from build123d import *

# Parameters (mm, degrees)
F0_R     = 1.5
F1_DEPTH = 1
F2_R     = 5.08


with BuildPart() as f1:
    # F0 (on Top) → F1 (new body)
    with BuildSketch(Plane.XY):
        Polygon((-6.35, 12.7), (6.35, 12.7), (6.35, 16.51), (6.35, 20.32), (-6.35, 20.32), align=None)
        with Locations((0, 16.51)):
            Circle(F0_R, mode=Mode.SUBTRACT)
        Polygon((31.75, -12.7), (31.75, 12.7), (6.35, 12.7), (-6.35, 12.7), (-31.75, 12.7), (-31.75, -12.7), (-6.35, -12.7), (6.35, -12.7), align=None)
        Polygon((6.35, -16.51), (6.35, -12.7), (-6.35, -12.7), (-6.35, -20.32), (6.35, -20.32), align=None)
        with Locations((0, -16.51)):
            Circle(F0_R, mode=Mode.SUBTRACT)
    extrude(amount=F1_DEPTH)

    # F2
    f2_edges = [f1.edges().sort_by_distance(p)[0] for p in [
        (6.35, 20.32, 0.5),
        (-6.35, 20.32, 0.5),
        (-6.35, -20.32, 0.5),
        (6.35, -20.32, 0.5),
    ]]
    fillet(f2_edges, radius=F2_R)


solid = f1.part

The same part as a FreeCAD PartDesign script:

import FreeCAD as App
import Part
import Sketcher
Q = App.Units.Quantity


def edges_at(feature, points):
    """Names of the edges that pass closest to the given points."""
    edges = feature.Shape.Edges
    near = lambda p: min(range(len(edges)), key=lambda i: edges[i].distToShape(Part.Vertex(*p))[0])
    return sorted({f"Edge{near(p) + 1}" for p in points})

doc = App.newDocument("Part")
body = doc.addObject("PartDesign::Body", "Body")

# Sketch on XY plane
sketch1 = body.newObject("Sketcher::SketchObject", "Sketch")
sketch1.AttachmentSupport = (doc.getObject("XY_Plane"), [""])
sketch1.MapMode = "FlatFace"
sketch1.addGeometry(Part.LineSegment(App.Vector(-6.3, 20.3, 0), App.Vector(-6.3, 12.7, 0)), False)
sketch1.addGeometry(Part.LineSegment(App.Vector(-6.3, 12.7, 0), App.Vector(-31.8, 12.7, 0)), False)
sketch1.addGeometry(Part.LineSegment(App.Vector(-31.8, 12.7, 0), App.Vector(-31.8, -12.7, 0)), False)
sketch1.addGeometry(Part.LineSegment(App.Vector(-31.8, -12.7, 0), App.Vector(-6.3, -12.7, 0)), False)
sketch1.addGeometry(Part.LineSegment(App.Vector(-6.3, -12.7, 0), App.Vector(-6.3, -20.3, 0)), False)
sketch1.addGeometry(Part.LineSegment(App.Vector(-6.3, -20.3, 0), App.Vector(6.3, -20.3, 0)), False)
sketch1.addGeometry(Part.LineSegment(App.Vector(6.3, -20.3, 0), App.Vector(6.3, -12.7, 0)), False)
sketch1.addGeometry(Part.LineSegment(App.Vector(6.3, -12.7, 0), App.Vector(31.8, -12.7, 0)), False)
sketch1.addGeometry(Part.LineSegment(App.Vector(31.8, -12.7, 0), App.Vector(31.8, 12.7, 0)), False)
sketch1.addGeometry(Part.LineSegment(App.Vector(31.8, 12.7, 0), App.Vector(6.3, 12.7, 0)), False)
sketch1.addGeometry(Part.LineSegment(App.Vector(6.3, 12.7, 0), App.Vector(6.3, 20.3, 0)), False)
sketch1.addGeometry(Part.LineSegment(App.Vector(6.3, 20.3, 0), App.Vector(-6.3, 20.3, 0)), False)
sketch1.addGeometry(Part.Circle(App.Vector(0, -16.5, 0), App.Vector(0, 0, 1), 1.5), False)
sketch1.addGeometry(Part.Circle(App.Vector(0, 16.5, 0), App.Vector(0, 0, 1), 1.5), False)
sketch1.addConstraint(Sketcher.Constraint("Coincident", 0, 2, 1, 1))
sketch1.addConstraint(Sketcher.Constraint("Coincident", 1, 2, 2, 1))
sketch1.addConstraint(Sketcher.Constraint("Coincident", 2, 2, 3, 1))
sketch1.addConstraint(Sketcher.Constraint("Coincident", 3, 2, 4, 1))
sketch1.addConstraint(Sketcher.Constraint("Coincident", 4, 2, 5, 1))
sketch1.addConstraint(Sketcher.Constraint("Coincident", 5, 2, 6, 1))
sketch1.addConstraint(Sketcher.Constraint("Coincident", 6, 2, 7, 1))
sketch1.addConstraint(Sketcher.Constraint("Coincident", 7, 2, 8, 1))
sketch1.addConstraint(Sketcher.Constraint("Coincident", 8, 2, 9, 1))
sketch1.addConstraint(Sketcher.Constraint("Coincident", 9, 2, 10, 1))
sketch1.addConstraint(Sketcher.Constraint("Coincident", 10, 2, 11, 1))
sketch1.addConstraint(Sketcher.Constraint("Coincident", 11, 2, 0, 1))
sketch1.addConstraint(Sketcher.Constraint("Vertical", 0))
sketch1.addConstraint(Sketcher.Constraint("Horizontal", 1))
sketch1.addConstraint(Sketcher.Constraint("Vertical", 2))
sketch1.addConstraint(Sketcher.Constraint("Horizontal", 3))
sketch1.addConstraint(Sketcher.Constraint("Vertical", 4))
sketch1.addConstraint(Sketcher.Constraint("Horizontal", 5))
sketch1.addConstraint(Sketcher.Constraint("Vertical", 6))
sketch1.addConstraint(Sketcher.Constraint("Horizontal", 7))
sketch1.addConstraint(Sketcher.Constraint("Vertical", 8))
sketch1.addConstraint(Sketcher.Constraint("Horizontal", 9))
sketch1.addConstraint(Sketcher.Constraint("Vertical", 10))
sketch1.addConstraint(Sketcher.Constraint("Horizontal", 11))
sketch1.addConstraint(Sketcher.Constraint("Equal", 12, 13))
sketch1.addConstraint(Sketcher.Constraint("Symmetric", 12, 3, 13, 3, -1, 1))
sketch1.addConstraint(Sketcher.Constraint("Symmetric", 0, 2, 6, 2, -1, 1))
sketch1.addConstraint(Sketcher.Constraint("Symmetric", 2, 2, 8, 2, -1, 1))
sketch1.addConstraint(Sketcher.Constraint("Symmetric", 4, 2, 10, 2, -1, 1))
sketch1.addConstraint(Sketcher.Constraint("Symmetric", 3, 2, 6, 2, -2))
sketch1.addConstraint(Sketcher.Constraint("PointOnObject", 12, 3, -2))
sketch1.addConstraint(Sketcher.Constraint("Equal", 9, 2))
sketch1.addConstraint(Sketcher.Constraint("DistanceX", 1, 2, 1, 1, Q("1 in")))
sketch1.addConstraint(Sketcher.Constraint("DistanceX", 5, 1, 5, 2, Q("0.5 in")))
sketch1.addConstraint(Sketcher.Constraint("DistanceY", 0, 2, 0, 1, Q("0.3 in")))
sketch1.addConstraint(Sketcher.Constraint("DistanceY", 12, 3, 13, 3, Q("1.3 in")))
sketch1.addConstraint(Sketcher.Constraint("Diameter", 12, Q("3 mm")))
pad1 = body.newObject("PartDesign::Pad", "Pad")
pad1.Profile = sketch1
pad1.Length = 1
doc.recompute()

fillet = body.newObject("PartDesign::Fillet", "Fillet")
fillet.Base = (pad1, edges_at(pad1, [
    (6.35, 20.32, 0.5),
    (-6.35, 20.32, 0.5),
    (-6.35, -20.32, 0.5),
    (6.35, -20.32, 0.5),
]))
fillet.Radius = Q("0.2 in")

doc.recompute()
